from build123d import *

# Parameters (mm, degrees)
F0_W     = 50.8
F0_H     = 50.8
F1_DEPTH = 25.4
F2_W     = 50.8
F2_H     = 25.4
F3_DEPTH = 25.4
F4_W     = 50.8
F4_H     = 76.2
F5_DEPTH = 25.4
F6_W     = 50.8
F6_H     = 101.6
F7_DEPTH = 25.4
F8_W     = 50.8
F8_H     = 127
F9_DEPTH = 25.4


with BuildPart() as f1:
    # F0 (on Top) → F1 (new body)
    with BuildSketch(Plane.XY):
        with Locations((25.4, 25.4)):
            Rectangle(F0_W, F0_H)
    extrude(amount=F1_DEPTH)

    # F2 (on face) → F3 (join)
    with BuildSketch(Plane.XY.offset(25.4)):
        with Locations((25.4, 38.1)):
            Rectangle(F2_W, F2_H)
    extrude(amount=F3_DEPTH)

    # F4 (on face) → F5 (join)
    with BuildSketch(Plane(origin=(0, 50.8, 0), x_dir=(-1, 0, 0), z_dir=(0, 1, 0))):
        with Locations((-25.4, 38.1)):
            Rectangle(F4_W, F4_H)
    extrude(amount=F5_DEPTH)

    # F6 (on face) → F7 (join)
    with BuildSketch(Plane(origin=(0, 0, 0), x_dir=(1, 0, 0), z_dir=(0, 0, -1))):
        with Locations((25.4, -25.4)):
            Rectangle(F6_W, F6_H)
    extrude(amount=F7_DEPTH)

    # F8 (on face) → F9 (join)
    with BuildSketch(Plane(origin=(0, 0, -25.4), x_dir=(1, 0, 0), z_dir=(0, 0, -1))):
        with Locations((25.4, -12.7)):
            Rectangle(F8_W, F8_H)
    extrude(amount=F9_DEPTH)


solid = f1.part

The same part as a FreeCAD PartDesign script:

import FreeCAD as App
import Part
import Sketcher

V = App.Vector
Q = App.Units.Quantity


def add_polygon(sketch, points):
    """Adds a closed chain of lines whose ends are joined by coincident constraints."""
    first, n = sketch.GeometryCount, len(points)
    for a, b in zip(points, points[1:] + points[:1]):
        sketch.addGeometry(Part.LineSegment(App.Vector(*a, 0), App.Vector(*b, 0)), False)
    for i in range(n):
        sketch.addConstraint(Sketcher.Constraint("Coincident", first + i, 2, first + (i + 1) % n, 1))

doc = App.newDocument("Part")
params = doc.addObject("Spreadsheet::Sheet", "Params")
for row, (alias, value) in enumerate([
    ("sketch1_width", "2 in"),
    ("pad1_length", "1 in"),
    ("sketch2_width", "2 in"),
    ("sketch2_height", "1 in"),
    ("pad2_length", "1 in"),
    ("sketch3_width", "2 in"),
    ("sketch3_height", "3 in"),
    ("pad3_length", "1 in"),
    ("sketch4_width", "2 in"),
    ("sketch4_height", "4 in"),
    ("pad4_length", "1 in"),
    ("sketch5_width", "2 in"),
    ("sketch5_height", "5 in"),
    ("pad5_length", "1 in"),
], start=1):
    params.set(f"A{row}", alias)
    params.set(f"B{row}", "=" + value)
    params.setAlias(f"B{row}", alias)

body = doc.addObject("PartDesign::Body", "Body")

# Sketch on XY plane
sketch1 = body.newObject("Sketcher::SketchObject", "Sketch")
sketch1.AttachmentSupport = (doc.getObject("XY_Plane"), [""])
sketch1.MapMode = "FlatFace"
add_polygon(sketch1, [(0, 51), (0, 0), (51, 0), (51, 51)])  # lines 0-3
sketch1.addConstraint([
    Sketcher.Constraint("Vertical", 0),
    Sketcher.Constraint("Horizontal", 1),
    Sketcher.Constraint("Vertical", 2),
    Sketcher.Constraint("Horizontal", 3),
    Sketcher.Constraint("Coincident", 0, 2, -1, 1),
    Sketcher.Constraint("Equal", 3, 0),
    Sketcher.Constraint("DistanceX", 1, 1, 1, 2, Q("2 in")),
])
sketch1.setExpression("Constraints[10]", "Params.sketch1_width")
pad1 = body.newObject("PartDesign::Pad", "Pad")
pad1.Profile = sketch1
pad1.setExpression("Length", "Params.pad1_length")

# Sketch on XY plane
sketch2 = body.newObject("Sketcher::SketchObject", "Sketch001")
sketch2.AttachmentSupport = (doc.getObject("XY_Plane"), [""])
sketch2.MapMode = "FlatFace"
sketch2.AttachmentOffset = App.Placement(V(0, 0, 1 * 25.4), App.Rotation())
add_polygon(sketch2, [(0, 51), (0, 25), (51, 25), (51, 51)])  # lines 0-3
sketch2.addConstraint([
    Sketcher.Constraint("Vertical", 0),
    Sketcher.Constraint("Horizontal", 1),
    Sketcher.Constraint("Vertical", 2),
    Sketcher.Constraint("Horizontal", 3),
    Sketcher.Constraint("PointOnObject", 0, 2, -2),
    Sketcher.Constraint("DistanceX", 1, 1, 1, 2, Q("2 in")),
    Sketcher.Constraint("DistanceY", 0, 2, 0, 1, Q("1 in")),
    Sketcher.Constraint("DistanceY", -1, 1, 0, 2, Q("1 in")),
])
sketch2.setExpression("Constraints[9]", "Params.sketch2_width")
sketch2.setExpression("Constraints[10]", "Params.sketch2_height")
pad2 = body.newObject("PartDesign::Pad", "Pad001")
pad2.Profile = sketch2
pad2.setExpression("Length", "Params.pad2_length")

# Sketch on XZ plane
sketch3 = body.newObject("Sketcher::SketchObject", "Sketch002")
sketch3.AttachmentSupport = (doc.getObject("XZ_Plane"), [""])
sketch3.MapMode = "FlatFace"
sketch3.AttachmentOffset = App.Placement(V(0, 0, -2 * 25.4), App.Rotation())
add_polygon(sketch3, [(51, 76), (51, 0), (0, 0), (0, 76)])  # lines 0-3
sketch3.addConstraint([
    Sketcher.Constraint("Vertical", 0),
    Sketcher.Constraint("Horizontal", 1),
    Sketcher.Constraint("Vertical", 2),
    Sketcher.Constraint("Horizontal", 3),
    Sketcher.Constraint("Coincident", 1, 2, -1, 1),
    Sketcher.Constraint("DistanceX", 1, 2, 1, 1, Q("2 in")),
    Sketcher.Constraint("DistanceY", 0, 2, 0, 1, Q("3 in")),
])
sketch3.setExpression("Constraints[9]", "Params.sketch3_width")
sketch3.setExpression("Constraints[10]", "Params.sketch3_height")
pad3 = body.newObject("PartDesign::Pad", "Pad002")
pad3.Profile = sketch3
pad3.setExpression("Length", "Params.pad3_length")
pad3.Reversed = True

# Sketch on XY plane
sketch4 = body.newObject("Sketcher::SketchObject", "Sketch003")
sketch4.AttachmentSupport = (doc.getObject("XY_Plane"), [""])
sketch4.MapMode = "FlatFace"
add_polygon(sketch4, [(0, -25), (0, 76), (51, 76), (51, -25)])  # lines 0-3
sketch4.addConstraint([
    Sketcher.Constraint("Vertical", 0),
    Sketcher.Constraint("Horizontal", 1),
    Sketcher.Constraint("Vertical", 2),
    Sketcher.Constraint("Horizontal", 3),
    Sketcher.Constraint("PointOnObject", 0, 2, -2),
    Sketcher.Constraint("DistanceX", 1, 1, 1, 2, Q("2 in")),
    Sketcher.Constraint("DistanceY", 0, 1, 0, 2, Q("4 in")),
    Sketcher.Constraint("DistanceY", -1, 1, 0, 2, Q("3 in")),
])
sketch4.setExpression("Constraints[9]", "Params.sketch4_width")
sketch4.setExpression("Constraints[10]", "Params.sketch4_height")
pad4 = body.newObject("PartDesign::Pad", "Pad003")
pad4.Profile = sketch4
pad4.setExpression("Length", "Params.pad4_length")
pad4.Reversed = True

# Sketch on XY plane
sketch5 = body.newObject("Sketcher::SketchObject", "Sketch004")
sketch5.AttachmentSupport = (doc.getObject("XY_Plane"), [""])
sketch5.MapMode = "FlatFace"
sketch5.AttachmentOffset = App.Placement(V(0, 0, -1 * 25.4), App.Rotation())
add_polygon(sketch5, [(0, -51), (0, 76), (51, 76), (51, -51)])  # lines 0-3
sketch5.addConstraint([
    Sketcher.Constraint("Vertical", 0),
    Sketcher.Constraint("Horizontal", 1),
    Sketcher.Constraint("Vertical", 2),
    Sketcher.Constraint("Horizontal", 3),
    Sketcher.Constraint("PointOnObject", 0, 2, -2),
    Sketcher.Constraint("DistanceX", 1, 1, 1, 2, Q("2 in")),
    Sketcher.Constraint("DistanceY", 0, 1, 0, 2, Q("5 in")),
    Sketcher.Constraint("DistanceY", -1, 1, 0, 2, Q("3 in")),
])
sketch5.setExpression("Constraints[9]", "Params.sketch5_width")
sketch5.setExpression("Constraints[10]", "Params.sketch5_height")
pad5 = body.newObject("PartDesign::Pad", "Pad004")
pad5.Profile = sketch5
pad5.setExpression("Length", "Params.pad5_length")
pad5.Reversed = True

doc.recompute()
